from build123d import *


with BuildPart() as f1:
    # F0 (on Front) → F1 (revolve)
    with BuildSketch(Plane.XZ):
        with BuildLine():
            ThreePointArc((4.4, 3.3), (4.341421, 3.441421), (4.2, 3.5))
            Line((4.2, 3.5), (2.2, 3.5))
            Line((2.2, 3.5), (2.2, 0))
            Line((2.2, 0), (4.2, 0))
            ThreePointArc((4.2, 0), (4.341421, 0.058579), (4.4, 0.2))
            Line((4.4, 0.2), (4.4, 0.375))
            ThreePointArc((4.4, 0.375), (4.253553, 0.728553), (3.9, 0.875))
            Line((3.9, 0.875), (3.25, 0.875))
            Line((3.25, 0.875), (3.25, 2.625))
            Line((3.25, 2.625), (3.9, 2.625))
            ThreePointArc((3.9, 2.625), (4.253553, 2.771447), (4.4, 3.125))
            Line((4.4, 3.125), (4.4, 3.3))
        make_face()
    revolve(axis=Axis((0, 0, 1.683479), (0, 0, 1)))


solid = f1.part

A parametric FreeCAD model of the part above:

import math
import FreeCAD as App
import Part
import Sketcher

doc = App.newDocument("Part")
body = doc.addObject("PartDesign::Body", "Body")

sketch1 = body.newObject("Sketcher::SketchObject", "Sketch")
sketch1.AttachmentSupport = (doc.getObject("XZ_Plane"), [""])
sketch1.MapMode = "FlatFace"
sketch1.addGeometry([
    Part.ArcOfCircle(Part.Circle(App.Vector(4.199999, 3.299999, 0), App.Vector(0, 0, 1), 0.200001), math.radians(0.000348), math.radians(89.999652)),
    Part.LineSegment(App.Vector(4.2, 3.5, 0), App.Vector(2.2, 3.5, 0)),
    Part.LineSegment(App.Vector(2.2, 3.5, 0), App.Vector(2.2, 0, 0)),
    Part.LineSegment(App.Vector(2.2, 0, 0), App.Vector(4.2, 0, 0)),
    Part.ArcOfCircle(Part.Circle(App.Vector(4.199999, 0.200001, 0), App.Vector(0, 0, 1), 0.200001), math.radians(-89.999652), math.radians(-0.000348)),
    Part.LineSegment(App.Vector(4.4, 0.2, 0), App.Vector(4.4, 0.375, 0)),
    Part.ArcOfCircle(Part.Circle(App.Vector(3.899999, 0.374999, 0), App.Vector(0, 0, 1), 0.500001), math.radians(0.000153), math.radians(89.999847)),
    Part.LineSegment(App.Vector(3.9, 0.875, 0), App.Vector(3.25, 0.875, 0)),
    Part.LineSegment(App.Vector(3.25, 0.875, 0), App.Vector(3.25, 2.625, 0)),
    Part.LineSegment(App.Vector(3.25, 2.625, 0), App.Vector(3.9, 2.625, 0)),
    Part.ArcOfCircle(Part.Circle(App.Vector(3.899999, 3.125001, 0), App.Vector(0, 0, 1), 0.500001), math.radians(-89.999847), math.radians(-0.000153)),
    Part.LineSegment(App.Vector(4.4, 3.125, 0), App.Vector(4.4, 3.3, 0)),
], False)
sketch1.addConstraint([
    Sketcher.Constraint("Coincident", 0, 2, 1, 1),
    Sketcher.Constraint("Coincident", 1, 2, 2, 1),
    Sketcher.Constraint("Coincident", 2, 2, 3, 1),
    Sketcher.Constraint("Coincident", 3, 2, 4, 1),
    Sketcher.Constraint("Coincident", 4, 2, 5, 1),
    Sketcher.Constraint("Coincident", 5, 2, 6, 1),
    Sketcher.Constraint("Coincident", 6, 2, 7, 1),
    Sketcher.Constraint("Coincident", 7, 2, 8, 1),
    Sketcher.Constraint("Coincident", 8, 2, 9, 1),
    Sketcher.Constraint("Coincident", 9, 2, 10, 1),
    Sketcher.Constraint("Coincident", 10, 2, 11, 1),
    Sketcher.Constraint("Coincident", 11, 2, 0, 1),
    Sketcher.Constraint("Horizontal", 1),
    Sketcher.Constraint("Vertical", 2),
    Sketcher.Constraint("Horizontal", 3),
    Sketcher.Constraint("Vertical", 5),
    Sketcher.Constraint("Horizontal", 7),
    Sketcher.Constraint("Vertical", 8),
    Sketcher.Constraint("Horizontal", 9),
    Sketcher.Constraint("Vertical", 11),
    Sketcher.Constraint("Equal", 0, 4),
    Sketcher.Constraint("Equal", 6, 10),
    Sketcher.Constraint("PointOnObject", 2, 2, -1),
    Sketcher.Constraint("Horizontal", 6, 3, 5, 2),
    Sketcher.Constraint("Horizontal", 0, 3, 11, 2),
    Sketcher.Constraint("Vertical", 0, 3, 4, 3),
    Sketcher.Constraint("Vertical", 4, 3, 0, 2),
    Sketcher.Constraint("Vertical", 0, 2, 3, 2),
    Sketcher.Constraint("Vertical", 10, 3, 6, 2),
    Sketcher.Constraint("Vertical", 6, 2, 9, 2),
    Sketcher.Constraint("Equal", 5, 11),
    Sketcher.Constraint("Radius", 0, 0.200001),
    Sketcher.Constraint("Radius", 6, 0.500001),
    Sketcher.Constraint("DistanceX", 1, 2, 1, 1, 2.0),
    Sketcher.Constraint("DistanceY", 2, 2, 2, 1, 3.5),
    Sketcher.Constraint("DistanceX", 7, 2, 7, 1, 0.65),
    Sketcher.Constraint("DistanceY", 8, 1, 8, 2, 1.75),
    Sketcher.Constraint("DistanceX", -1, 1, 0, 3, 4.199999),
    Sketcher.Constraint("DistanceY", -1, 1, 4, 2, 0.2),
    Sketcher.Constraint("DistanceY", 9, 2, 10, 2, 0.5),
])
revolution = body.newObject("PartDesign::Revolution", "Revolution")
revolution.Profile = sketch1
revolution.ReferenceAxis = (sketch1, ["V_Axis"])
revolution.Angle = 360

doc.recompute()
